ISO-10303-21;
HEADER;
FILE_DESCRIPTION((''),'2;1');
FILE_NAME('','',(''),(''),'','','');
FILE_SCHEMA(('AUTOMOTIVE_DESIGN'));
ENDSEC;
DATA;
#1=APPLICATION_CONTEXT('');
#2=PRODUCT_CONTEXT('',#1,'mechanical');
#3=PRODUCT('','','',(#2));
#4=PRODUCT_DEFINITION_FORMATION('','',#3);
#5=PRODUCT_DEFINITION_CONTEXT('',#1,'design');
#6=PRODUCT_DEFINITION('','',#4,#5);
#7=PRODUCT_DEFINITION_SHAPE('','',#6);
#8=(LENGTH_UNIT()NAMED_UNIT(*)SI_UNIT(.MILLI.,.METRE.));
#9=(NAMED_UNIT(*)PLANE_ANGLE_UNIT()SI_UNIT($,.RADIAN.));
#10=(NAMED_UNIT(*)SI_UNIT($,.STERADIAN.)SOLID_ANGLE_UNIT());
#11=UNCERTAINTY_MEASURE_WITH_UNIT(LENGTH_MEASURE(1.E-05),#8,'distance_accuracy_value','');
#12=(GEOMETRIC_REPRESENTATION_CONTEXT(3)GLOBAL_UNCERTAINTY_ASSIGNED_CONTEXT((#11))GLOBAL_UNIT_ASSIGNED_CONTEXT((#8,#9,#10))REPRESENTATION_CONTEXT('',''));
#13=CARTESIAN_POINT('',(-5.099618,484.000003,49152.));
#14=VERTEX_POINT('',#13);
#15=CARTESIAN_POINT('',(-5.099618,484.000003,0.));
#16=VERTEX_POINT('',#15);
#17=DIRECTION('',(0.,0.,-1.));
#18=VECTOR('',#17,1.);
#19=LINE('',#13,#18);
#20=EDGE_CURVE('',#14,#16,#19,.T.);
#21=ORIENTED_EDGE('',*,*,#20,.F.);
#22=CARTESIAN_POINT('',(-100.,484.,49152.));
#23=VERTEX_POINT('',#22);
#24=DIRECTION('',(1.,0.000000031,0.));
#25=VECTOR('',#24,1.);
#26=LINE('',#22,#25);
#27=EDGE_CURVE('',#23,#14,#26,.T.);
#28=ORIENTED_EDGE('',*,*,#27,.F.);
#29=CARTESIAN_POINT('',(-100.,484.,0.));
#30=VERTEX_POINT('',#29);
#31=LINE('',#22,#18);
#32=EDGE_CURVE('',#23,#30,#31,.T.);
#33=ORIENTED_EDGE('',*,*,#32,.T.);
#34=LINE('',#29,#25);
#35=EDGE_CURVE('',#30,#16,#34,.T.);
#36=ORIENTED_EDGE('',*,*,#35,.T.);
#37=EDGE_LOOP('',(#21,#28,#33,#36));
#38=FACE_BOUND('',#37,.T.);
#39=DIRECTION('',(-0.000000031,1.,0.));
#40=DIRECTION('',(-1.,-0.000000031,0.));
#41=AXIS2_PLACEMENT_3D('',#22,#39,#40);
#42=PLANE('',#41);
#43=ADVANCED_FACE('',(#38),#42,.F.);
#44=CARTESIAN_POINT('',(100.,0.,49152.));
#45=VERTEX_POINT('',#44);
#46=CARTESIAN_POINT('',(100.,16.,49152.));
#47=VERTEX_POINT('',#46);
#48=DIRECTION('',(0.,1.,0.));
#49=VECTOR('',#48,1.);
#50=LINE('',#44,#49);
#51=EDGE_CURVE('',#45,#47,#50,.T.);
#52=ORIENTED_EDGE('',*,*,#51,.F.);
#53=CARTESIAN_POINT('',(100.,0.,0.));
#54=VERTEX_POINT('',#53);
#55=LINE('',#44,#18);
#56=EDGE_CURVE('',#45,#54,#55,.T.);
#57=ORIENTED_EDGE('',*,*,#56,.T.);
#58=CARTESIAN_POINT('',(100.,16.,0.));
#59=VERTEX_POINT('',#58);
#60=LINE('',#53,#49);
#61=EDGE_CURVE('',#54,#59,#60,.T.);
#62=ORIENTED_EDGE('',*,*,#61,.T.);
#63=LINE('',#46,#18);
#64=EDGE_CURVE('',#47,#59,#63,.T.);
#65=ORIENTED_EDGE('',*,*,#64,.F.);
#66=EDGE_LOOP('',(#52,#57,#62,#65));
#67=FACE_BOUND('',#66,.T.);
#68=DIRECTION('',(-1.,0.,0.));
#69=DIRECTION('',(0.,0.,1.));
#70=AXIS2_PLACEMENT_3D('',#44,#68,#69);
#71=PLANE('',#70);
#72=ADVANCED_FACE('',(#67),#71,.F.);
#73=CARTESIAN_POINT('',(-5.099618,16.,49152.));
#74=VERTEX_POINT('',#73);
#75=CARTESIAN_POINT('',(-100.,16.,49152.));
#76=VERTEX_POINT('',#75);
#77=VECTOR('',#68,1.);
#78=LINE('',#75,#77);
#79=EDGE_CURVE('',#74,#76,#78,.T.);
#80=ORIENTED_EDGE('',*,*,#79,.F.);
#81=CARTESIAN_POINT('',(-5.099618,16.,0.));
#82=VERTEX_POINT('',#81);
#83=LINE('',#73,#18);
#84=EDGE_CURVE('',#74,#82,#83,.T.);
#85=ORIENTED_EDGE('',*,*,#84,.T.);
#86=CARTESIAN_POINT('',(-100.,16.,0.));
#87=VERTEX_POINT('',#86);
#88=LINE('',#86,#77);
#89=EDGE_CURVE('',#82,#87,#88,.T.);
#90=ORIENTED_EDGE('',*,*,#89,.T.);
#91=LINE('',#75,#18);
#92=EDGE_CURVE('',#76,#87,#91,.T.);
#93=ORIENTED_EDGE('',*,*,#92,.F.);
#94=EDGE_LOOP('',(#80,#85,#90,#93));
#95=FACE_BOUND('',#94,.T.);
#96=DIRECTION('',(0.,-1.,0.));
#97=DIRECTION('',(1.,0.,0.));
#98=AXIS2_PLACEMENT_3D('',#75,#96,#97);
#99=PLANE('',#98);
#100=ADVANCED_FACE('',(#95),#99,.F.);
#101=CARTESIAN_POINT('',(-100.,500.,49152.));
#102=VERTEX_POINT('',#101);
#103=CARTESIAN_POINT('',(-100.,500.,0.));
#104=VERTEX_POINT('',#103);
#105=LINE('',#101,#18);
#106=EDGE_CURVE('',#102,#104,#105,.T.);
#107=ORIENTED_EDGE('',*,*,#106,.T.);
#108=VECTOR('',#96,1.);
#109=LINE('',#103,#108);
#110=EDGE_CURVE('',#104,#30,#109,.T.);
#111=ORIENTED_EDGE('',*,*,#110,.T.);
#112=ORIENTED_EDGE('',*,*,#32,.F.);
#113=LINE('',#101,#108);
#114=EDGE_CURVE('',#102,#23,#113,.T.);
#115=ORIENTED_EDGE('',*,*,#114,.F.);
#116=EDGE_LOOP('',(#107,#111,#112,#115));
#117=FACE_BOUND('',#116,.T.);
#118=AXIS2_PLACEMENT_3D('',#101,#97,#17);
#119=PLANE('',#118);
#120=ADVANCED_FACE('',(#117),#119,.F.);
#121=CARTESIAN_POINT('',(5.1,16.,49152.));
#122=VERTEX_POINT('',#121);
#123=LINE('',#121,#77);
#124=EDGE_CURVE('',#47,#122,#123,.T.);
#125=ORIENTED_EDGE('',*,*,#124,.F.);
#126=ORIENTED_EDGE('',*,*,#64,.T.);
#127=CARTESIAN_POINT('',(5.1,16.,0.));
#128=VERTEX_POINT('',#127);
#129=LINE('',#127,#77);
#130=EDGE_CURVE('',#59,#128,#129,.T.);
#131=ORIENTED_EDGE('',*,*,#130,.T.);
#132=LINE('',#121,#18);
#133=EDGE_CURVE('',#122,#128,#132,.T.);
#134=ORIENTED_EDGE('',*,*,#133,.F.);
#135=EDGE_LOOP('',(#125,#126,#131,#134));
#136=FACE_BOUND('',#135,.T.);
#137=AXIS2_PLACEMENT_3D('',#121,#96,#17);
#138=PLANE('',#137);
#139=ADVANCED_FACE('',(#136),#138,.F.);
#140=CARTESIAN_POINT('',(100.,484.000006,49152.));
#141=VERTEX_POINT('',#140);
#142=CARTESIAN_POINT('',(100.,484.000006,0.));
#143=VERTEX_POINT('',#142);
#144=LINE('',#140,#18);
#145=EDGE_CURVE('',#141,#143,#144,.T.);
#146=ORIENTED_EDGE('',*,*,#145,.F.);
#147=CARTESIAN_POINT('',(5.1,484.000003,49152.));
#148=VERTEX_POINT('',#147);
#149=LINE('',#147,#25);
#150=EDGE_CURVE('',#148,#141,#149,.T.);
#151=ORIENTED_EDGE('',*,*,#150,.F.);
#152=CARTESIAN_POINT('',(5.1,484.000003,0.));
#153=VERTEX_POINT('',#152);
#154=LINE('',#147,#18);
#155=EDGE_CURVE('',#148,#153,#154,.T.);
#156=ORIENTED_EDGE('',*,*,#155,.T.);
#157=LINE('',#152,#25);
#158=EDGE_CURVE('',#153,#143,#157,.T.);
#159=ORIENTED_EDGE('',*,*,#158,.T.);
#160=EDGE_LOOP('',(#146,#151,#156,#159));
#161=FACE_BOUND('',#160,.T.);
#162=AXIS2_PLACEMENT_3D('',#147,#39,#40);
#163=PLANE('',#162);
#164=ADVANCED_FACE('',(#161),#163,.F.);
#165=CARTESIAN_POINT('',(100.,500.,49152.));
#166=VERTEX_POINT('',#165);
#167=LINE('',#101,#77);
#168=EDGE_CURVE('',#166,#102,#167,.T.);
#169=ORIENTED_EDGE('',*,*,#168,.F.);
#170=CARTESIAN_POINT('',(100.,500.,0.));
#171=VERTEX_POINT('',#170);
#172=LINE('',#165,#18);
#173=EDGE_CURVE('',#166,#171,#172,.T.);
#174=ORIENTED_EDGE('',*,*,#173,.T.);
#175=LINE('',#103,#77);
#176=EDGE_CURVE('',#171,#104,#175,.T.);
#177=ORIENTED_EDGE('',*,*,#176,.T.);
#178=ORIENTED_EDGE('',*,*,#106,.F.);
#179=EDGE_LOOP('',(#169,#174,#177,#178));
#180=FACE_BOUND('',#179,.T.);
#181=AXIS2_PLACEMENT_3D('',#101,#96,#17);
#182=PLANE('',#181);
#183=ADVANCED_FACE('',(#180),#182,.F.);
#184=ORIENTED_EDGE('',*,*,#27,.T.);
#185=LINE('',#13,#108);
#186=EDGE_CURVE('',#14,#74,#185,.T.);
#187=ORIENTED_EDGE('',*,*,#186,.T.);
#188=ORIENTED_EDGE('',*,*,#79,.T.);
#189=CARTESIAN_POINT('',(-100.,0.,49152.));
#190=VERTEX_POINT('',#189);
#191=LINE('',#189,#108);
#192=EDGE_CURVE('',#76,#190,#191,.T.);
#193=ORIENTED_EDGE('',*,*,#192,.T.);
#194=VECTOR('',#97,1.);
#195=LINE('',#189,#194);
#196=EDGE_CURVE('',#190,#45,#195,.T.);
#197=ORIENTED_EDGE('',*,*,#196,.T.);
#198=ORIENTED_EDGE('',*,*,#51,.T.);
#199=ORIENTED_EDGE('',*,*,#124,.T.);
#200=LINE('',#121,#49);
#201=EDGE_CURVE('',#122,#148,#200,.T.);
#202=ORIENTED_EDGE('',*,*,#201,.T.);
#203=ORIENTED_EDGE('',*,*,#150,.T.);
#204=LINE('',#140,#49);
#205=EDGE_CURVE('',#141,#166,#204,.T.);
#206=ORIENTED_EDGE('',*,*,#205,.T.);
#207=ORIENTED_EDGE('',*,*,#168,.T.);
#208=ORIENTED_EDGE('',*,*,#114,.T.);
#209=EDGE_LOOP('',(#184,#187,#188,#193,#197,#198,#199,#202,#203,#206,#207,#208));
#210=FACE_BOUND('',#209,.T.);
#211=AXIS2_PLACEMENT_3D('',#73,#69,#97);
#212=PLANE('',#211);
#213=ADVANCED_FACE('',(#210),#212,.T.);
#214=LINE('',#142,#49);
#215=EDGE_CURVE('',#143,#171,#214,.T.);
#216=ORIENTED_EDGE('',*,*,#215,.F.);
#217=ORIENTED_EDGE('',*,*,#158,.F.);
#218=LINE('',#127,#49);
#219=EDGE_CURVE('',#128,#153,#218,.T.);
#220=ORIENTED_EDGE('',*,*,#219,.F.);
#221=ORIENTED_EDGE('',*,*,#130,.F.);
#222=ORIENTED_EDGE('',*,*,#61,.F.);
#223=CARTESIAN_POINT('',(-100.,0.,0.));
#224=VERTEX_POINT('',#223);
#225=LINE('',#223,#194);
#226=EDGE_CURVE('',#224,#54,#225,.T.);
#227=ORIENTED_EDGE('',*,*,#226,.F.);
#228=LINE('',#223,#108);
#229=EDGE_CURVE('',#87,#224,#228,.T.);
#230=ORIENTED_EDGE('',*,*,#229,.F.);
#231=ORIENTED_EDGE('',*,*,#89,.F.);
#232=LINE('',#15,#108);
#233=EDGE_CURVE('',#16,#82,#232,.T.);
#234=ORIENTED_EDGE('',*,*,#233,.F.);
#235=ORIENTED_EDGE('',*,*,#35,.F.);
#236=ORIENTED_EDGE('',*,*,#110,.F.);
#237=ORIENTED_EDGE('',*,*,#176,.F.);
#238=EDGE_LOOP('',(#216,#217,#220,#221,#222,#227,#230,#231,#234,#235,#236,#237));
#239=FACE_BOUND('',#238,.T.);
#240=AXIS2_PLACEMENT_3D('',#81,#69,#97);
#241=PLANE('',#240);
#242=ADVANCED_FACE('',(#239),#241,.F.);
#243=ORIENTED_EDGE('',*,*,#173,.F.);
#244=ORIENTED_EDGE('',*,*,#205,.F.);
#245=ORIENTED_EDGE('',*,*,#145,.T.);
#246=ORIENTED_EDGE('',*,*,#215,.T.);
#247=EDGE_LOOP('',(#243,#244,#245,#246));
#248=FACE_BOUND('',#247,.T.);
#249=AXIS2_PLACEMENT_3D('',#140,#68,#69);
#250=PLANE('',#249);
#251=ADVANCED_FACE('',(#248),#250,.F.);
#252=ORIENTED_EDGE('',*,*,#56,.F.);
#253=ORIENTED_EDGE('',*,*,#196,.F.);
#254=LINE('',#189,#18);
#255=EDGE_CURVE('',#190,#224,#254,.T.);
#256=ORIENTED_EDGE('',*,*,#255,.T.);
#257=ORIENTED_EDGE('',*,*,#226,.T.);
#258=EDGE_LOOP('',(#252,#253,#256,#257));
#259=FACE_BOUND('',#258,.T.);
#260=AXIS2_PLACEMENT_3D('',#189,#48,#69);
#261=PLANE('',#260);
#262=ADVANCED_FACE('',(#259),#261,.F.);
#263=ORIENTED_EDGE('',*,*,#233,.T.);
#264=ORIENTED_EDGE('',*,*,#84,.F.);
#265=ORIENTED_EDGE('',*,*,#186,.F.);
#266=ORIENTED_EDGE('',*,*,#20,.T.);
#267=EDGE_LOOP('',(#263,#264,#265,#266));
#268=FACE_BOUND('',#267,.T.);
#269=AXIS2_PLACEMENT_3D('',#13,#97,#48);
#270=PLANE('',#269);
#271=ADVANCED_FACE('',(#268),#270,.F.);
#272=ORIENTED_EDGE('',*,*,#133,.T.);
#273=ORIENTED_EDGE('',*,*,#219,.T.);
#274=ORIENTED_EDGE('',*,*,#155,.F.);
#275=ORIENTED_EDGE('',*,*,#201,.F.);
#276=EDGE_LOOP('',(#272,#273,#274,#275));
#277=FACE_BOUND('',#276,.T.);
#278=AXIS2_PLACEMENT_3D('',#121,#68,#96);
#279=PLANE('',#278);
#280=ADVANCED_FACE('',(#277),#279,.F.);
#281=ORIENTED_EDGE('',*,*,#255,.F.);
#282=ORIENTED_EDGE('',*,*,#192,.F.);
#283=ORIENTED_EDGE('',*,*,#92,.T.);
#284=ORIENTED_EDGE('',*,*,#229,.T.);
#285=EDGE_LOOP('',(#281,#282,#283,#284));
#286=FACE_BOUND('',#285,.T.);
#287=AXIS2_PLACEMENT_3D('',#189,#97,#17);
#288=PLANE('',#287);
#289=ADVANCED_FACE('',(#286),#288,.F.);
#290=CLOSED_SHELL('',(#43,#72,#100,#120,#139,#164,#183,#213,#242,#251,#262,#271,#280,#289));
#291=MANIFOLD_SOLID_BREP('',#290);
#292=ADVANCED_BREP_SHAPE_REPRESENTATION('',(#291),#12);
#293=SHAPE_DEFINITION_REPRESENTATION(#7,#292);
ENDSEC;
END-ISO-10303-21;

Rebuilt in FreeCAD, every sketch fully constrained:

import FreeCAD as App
import Part
import Sketcher

V = App.Vector

doc = App.newDocument("Part")
body = doc.addObject("PartDesign::Body", "Body")

sketch1 = body.newObject("Sketcher::SketchObject", "Sketch")
sketch1.AttachmentSupport = (doc.getObject("XY_Plane"), [""])
sketch1.MapMode = "FlatFace"
sketch1.addGeometry([
    Part.LineSegment(V(100, 0, 0), V(100, 16, 0)),
    Part.LineSegment(V(100, 16, 0), V(5.1, 16, 0)),
    Part.LineSegment(V(5.1, 16, 0), V(5.1, 484.000003, 0)),
    Part.LineSegment(V(5.1, 484.000003, 0), V(100, 484.000006, 0)),
    Part.LineSegment(V(100, 484.000006, 0), V(100, 500, 0)),
    Part.LineSegment(V(100, 500, 0), V(-100, 500, 0)),
    Part.LineSegment(V(-100, 500, 0), V(-100, 484, 0)),
    Part.LineSegment(V(-100, 484, 0), V(-5.099618, 484.000003, 0)),
    Part.LineSegment(V(-5.099618, 484.000003, 0), V(-5.099618, 16, 0)),
    Part.LineSegment(V(-5.099618, 16, 0), V(-100, 16, 0)),
    Part.LineSegment(V(-100, 16, 0), V(-100, 0, 0)),
    Part.LineSegment(V(-100, 0, 0), V(100, 0, 0)),
], False)
sketch1.addConstraint([
    Sketcher.Constraint("Coincident", 0, 2, 1, 1),
    Sketcher.Constraint("Coincident", 1, 2, 2, 1),
    Sketcher.Constraint("Coincident", 2, 2, 3, 1),
    Sketcher.Constraint("Coincident", 3, 2, 4, 1),
    Sketcher.Constraint("Coincident", 4, 2, 5, 1),
    Sketcher.Constraint("Coincident", 5, 2, 6, 1),
    Sketcher.Constraint("Coincident", 6, 2, 7, 1),
    Sketcher.Constraint("Coincident", 7, 2, 8, 1),
    Sketcher.Constraint("Coincident", 8, 2, 9, 1),
    Sketcher.Constraint("Coincident", 9, 2, 10, 1),
    Sketcher.Constraint("Coincident", 10, 2, 11, 1),
    Sketcher.Constraint("Coincident", 11, 2, 0, 1),
    Sketcher.Constraint("Vertical", 0),
    Sketcher.Constraint("Horizontal", 1),
    Sketcher.Constraint("Vertical", 2),
    Sketcher.Constraint("Vertical", 4),
    Sketcher.Constraint("Horizontal", 5),
    Sketcher.Constraint("Vertical", 6),
    Sketcher.Constraint("Vertical", 8),
    Sketcher.Constraint("Horizontal", 9),
    Sketcher.Constraint("Vertical", 10),
    Sketcher.Constraint("Horizontal", 11),
    Sketcher.Constraint("Symmetric", 10, 2, 11, 2, -1, 1),
    Sketcher.Constraint("Symmetric", 3, 2, 6, 2, -2),
    Sketcher.Constraint("Parallel", 3, 7),
    Sketcher.Constraint("Horizontal", 2, 2, 7, 2),
    Sketcher.Constraint("Horizontal", 1, 2, 8, 2),
    Sketcher.Constraint("Vertical", 0, 2, 3, 2),
    Sketcher.Constraint("Equal", 0, 6),
    Sketcher.Constraint("DistanceX", 5, 2, 5, 1, 200.0),
    Sketcher.Constraint("DistanceY", 0, 1, 0, 2, 16.0),
    Sketcher.Constraint("DistanceX", 1, 2, 1, 1, 94.9),
    Sketcher.Constraint("DistanceY", -1, 1, 4, 2, 500.0),
    Sketcher.Constraint("DistanceX", 9, 2, 9, 1, 94.900382),
])
pad1 = body.newObject("PartDesign::Pad", "Pad")
pad1.Profile = sketch1
pad1.Length = 49152

doc.recompute()
